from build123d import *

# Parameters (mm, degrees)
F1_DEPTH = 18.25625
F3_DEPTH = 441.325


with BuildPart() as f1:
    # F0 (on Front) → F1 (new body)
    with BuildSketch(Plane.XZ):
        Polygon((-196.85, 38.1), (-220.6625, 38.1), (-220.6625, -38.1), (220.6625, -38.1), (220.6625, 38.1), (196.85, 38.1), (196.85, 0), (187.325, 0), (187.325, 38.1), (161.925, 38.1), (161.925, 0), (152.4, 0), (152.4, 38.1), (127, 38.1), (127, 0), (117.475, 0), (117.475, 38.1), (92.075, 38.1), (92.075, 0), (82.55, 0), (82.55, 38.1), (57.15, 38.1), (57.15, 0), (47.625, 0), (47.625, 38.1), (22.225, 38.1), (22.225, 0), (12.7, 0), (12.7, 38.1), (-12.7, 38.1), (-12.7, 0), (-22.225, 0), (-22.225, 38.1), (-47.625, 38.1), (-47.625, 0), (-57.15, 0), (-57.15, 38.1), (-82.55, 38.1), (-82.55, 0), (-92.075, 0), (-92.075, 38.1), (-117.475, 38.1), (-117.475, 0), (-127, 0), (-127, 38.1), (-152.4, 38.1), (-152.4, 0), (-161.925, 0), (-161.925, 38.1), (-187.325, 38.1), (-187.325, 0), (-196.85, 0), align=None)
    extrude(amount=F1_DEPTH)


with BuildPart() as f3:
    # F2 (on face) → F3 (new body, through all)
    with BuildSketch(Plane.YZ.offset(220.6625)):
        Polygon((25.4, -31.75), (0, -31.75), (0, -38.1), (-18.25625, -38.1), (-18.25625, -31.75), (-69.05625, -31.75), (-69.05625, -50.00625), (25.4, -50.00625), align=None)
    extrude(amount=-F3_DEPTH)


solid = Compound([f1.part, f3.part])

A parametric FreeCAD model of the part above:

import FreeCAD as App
import Part
import Sketcher
Q = App.Units.Quantity

doc = App.newDocument("Part")
body = doc.addObject("PartDesign::Body", "Body")

# Sketch on XZ plane
sketch1 = body.newObject("Sketcher::SketchObject", "Sketch")
sketch1.AttachmentSupport = (doc.getObject("XZ_Plane"), [""])
sketch1.MapMode = "FlatFace"
sketch1.addGeometry(Part.LineSegment(App.Vector(-197, 38, 0), App.Vector(-221, 38, 0)), False)
sketch1.addGeometry(Part.LineSegment(App.Vector(-221, 38, 0), App.Vector(-221, -38, 0)), False)
sketch1.addGeometry(Part.LineSegment(App.Vector(-221, -38, 0), App.Vector(221, -38, 0)), False)
sketch1.addGeometry(Part.LineSegment(App.Vector(221, -38, 0), App.Vector(221, 38, 0)), False)
sketch1.addGeometry(Part.LineSegment(App.Vector(221, 38, 0), App.Vector(197, 38, 0)), False)
sketch1.addGeometry(Part.LineSegment(App.Vector(197, 38, 0), App.Vector(197, 0, 0)), False)
sketch1.addGeometry(Part.LineSegment(App.Vector(197, 0, 0), App.Vector(187, 0, 0)), False)
sketch1.addGeometry(Part.LineSegment(App.Vector(187, 0, 0), App.Vector(187, 38, 0)), False)
sketch1.addGeometry(Part.LineSegment(App.Vector(187, 38, 0), App.Vector(162, 38, 0)), False)
sketch1.addGeometry(Part.LineSegment(App.Vector(162, 38, 0), App.Vector(162, 0, 0)), False)
sketch1.addGeometry(Part.LineSegment(App.Vector(162, 0, 0), App.Vector(152, 0, 0)), False)
sketch1.addGeometry(Part.LineSegment(App.Vector(152, 0, 0), App.Vector(152, 38, 0)), False)
sketch1.addGeometry(Part.LineSegment(App.Vector(152, 38, 0), App.Vector(127, 38, 0)), False)
sketch1.addGeometry(Part.LineSegment(App.Vector(127, 38, 0), App.Vector(127, 0, 0)), False)
sketch1.addGeometry(Part.LineSegment(App.Vector(127, 0, 0), App.Vector(117, 0, 0)), False)
sketch1.addGeometry(Part.LineSegment(App.Vector(117, 0, 0), App.Vector(117, 38, 0)), False)
sketch1.addGeometry(Part.LineSegment(App.Vector(117, 38, 0), App.Vector(92, 38, 0)), False)
sketch1.addGeometry(Part.LineSegment(App.Vector(92, 38, 0), App.Vector(92, 0, 0)), False)
sketch1.addGeometry(Part.LineSegment(App.Vector(92, 0, 0), App.Vector(83, 0, 0)), False)
sketch1.addGeometry(Part.LineSegment(App.Vector(83, 0, 0), App.Vector(83, 38, 0)), False)
sketch1.addGeometry(Part.LineSegment(App.Vector(83, 38, 0), App.Vector(57, 38, 0)), False)
sketch1.addGeometry(Part.LineSegment(App.Vector(57, 38, 0), App.Vector(57, 0, 0)), False)
sketch1.addGeometry(Part.LineSegment(App.Vector(57, 0, 0), App.Vector(48, 0, 0)), False)
sketch1.addGeometry(Part.LineSegment(App.Vector(48, 0, 0), App.Vector(48, 38, 0)), False)
sketch1.addGeometry(Part.LineSegment(App.Vector(48, 38, 0), App.Vector(22, 38, 0)), False)
sketch1.addGeometry(Part.LineSegment(App.Vector(22, 38, 0), App.Vector(22, 0, 0)), False)
sketch1.addGeometry(Part.LineSegment(App.Vector(22, 0, 0), App.Vector(13, 0, 0)), False)
sketch1.addGeometry(Part.LineSegment(App.Vector(13, 0, 0), App.Vector(13, 38, 0)), False)
sketch1.addGeometry(Part.LineSegment(App.Vector(13, 38, 0), App.Vector(-13, 38, 0)), False)
sketch1.addGeometry(Part.LineSegment(App.Vector(-13, 38, 0), App.Vector(-13, 0, 0)), False)
sketch1.addGeometry(Part.LineSegment(App.Vector(-13, 0, 0), App.Vector(-22, 0, 0)), False)
sketch1.addGeometry(Part.LineSegment(App.Vector(-22, 0, 0), App.Vector(-22, 38, 0)), False)
sketch1.addGeometry(Part.LineSegment(App.Vector(-22, 38, 0), App.Vector(-48, 38, 0)), False)
sketch1.addGeometry(Part.LineSegment(App.Vector(-48, 38, 0), App.Vector(-48, 0, 0)), False)
sketch1.addGeometry(Part.LineSegment(App.Vector(-48, 0, 0), App.Vector(-57, 0, 0)), False)
sketch1.addGeometry(Part.LineSegment(App.Vector(-57, 0, 0), App.Vector(-57, 38, 0)), False)
sketch1.addGeometry(Part.LineSegment(App.Vector(-57, 38, 0), App.Vector(-83, 38, 0)), False)
sketch1.addGeometry(Part.LineSegment(App.Vector(-83, 38, 0), App.Vector(-83, 0, 0)), False)
sketch1.addGeometry(Part.LineSegment(App.Vector(-83, 0, 0), App.Vector(-92, 0, 0)), False)
sketch1.addGeometry(Part.LineSegment(App.Vector(-92, 0, 0), App.Vector(-92, 38, 0)), False)
sketch1.addGeometry(Part.LineSegment(App.Vector(-92, 38, 0), App.Vector(-117, 38, 0)), False)
sketch1.addGeometry(Part.LineSegment(App.Vector(-117, 38, 0), App.Vector(-117, 0, 0)), False)
sketch1.addGeometry(Part.LineSegment(App.Vector(-117, 0, 0), App.Vector(-127, 0, 0)), False)
sketch1.addGeometry(Part.LineSegment(App.Vector(-127, 0, 0), App.Vector(-127, 38, 0)), False)
sketch1.addGeometry(Part.LineSegment(App.Vector(-127, 38, 0), App.Vector(-152, 38, 0)), False)
sketch1.addGeometry(Part.LineSegment(App.Vector(-152, 38, 0), App.Vector(-152, 0, 0)), False)
sketch1.addGeometry(Part.LineSegment(App.Vector(-152, 0, 0), App.Vector(-162, 0, 0)), False)
sketch1.addGeometry(Part.LineSegment(App.Vector(-162, 0, 0), App.Vector(-162, 38, 0)), False)
sketch1.addGeometry(Part.LineSegment(App.Vector(-162, 38, 0), App.Vector(-187, 38, 0)), False)
sketch1.addGeometry(Part.LineSegment(App.Vector(-187, 38, 0), App.Vector(-187, 0, 0)), False)
sketch1.addGeometry(Part.LineSegment(App.Vector(-187, 0, 0), App.Vector(-197, 0, 0)), False)
sketch1.addGeometry(Part.LineSegment(App.Vector(-197, 0, 0), App.Vector(-197, 38, 0)), False)
sketch1.addConstraint(Sketcher.Constraint("Coincident", 0, 2, 1, 1))
sketch1.addConstraint(Sketcher.Constraint("Coincident", 1, 2, 2, 1))
sketch1.addConstraint(Sketcher.Constraint("Coincident", 2, 2, 3, 1))
sketch1.addConstraint(Sketcher.Constraint("Coincident", 3, 2, 4, 1))
sketch1.addConstraint(Sketcher.Constraint("Coincident", 4, 2, 5, 1))
sketch1.addConstraint(Sketcher.Constraint("Coincident", 5, 2, 6, 1))
sketch1.addConstraint(Sketcher.Constraint("Coincident", 6, 2, 7, 1))
sketch1.addConstraint(Sketcher.Constraint("Coincident", 7, 2, 8, 1))
sketch1.addConstraint(Sketcher.Constraint("Coincident", 8, 2, 9, 1))
sketch1.addConstraint(Sketcher.Constraint("Coincident", 9, 2, 10, 1))
sketch1.addConstraint(Sketcher.Constraint("Coincident", 10, 2, 11, 1))
sketch1.addConstraint(Sketcher.Constraint("Coincident", 11, 2, 12, 1))
sketch1.addConstraint(Sketcher.Constraint("Coincident", 12, 2, 13, 1))
sketch1.addConstraint(Sketcher.Constraint("Coincident", 13, 2, 14, 1))
sketch1.addConstraint(Sketcher.Constraint("Coincident", 14, 2, 15, 1))
sketch1.addConstraint(Sketcher.Constraint("Coincident", 15, 2, 16, 1))
sketch1.addConstraint(Sketcher.Constraint("Coincident", 16, 2, 17, 1))
sketch1.addConstraint(Sketcher.Constraint("Coincident", 17, 2, 18, 1))
sketch1.addConstraint(Sketcher.Constraint("Coincident", 18, 2, 19, 1))
sketch1.addConstraint(Sketcher.Constraint("Coincident", 19, 2, 20, 1))
sketch1.addConstraint(Sketcher.Constraint("Coincident", 20, 2, 21, 1))
sketch1.addConstraint(Sketcher.Constraint("Coincident", 21, 2, 22, 1))
sketch1.addConstraint(Sketcher.Constraint("Coincident", 22, 2, 23, 1))
sketch1.addConstraint(Sketcher.Constraint("Coincident", 23, 2, 24, 1))
sketch1.addConstraint(Sketcher.Constraint("Coincident", 24, 2, 25, 1))
sketch1.addConstraint(Sketcher.Constraint("Coincident", 25, 2, 26, 1))
sketch1.addConstraint(Sketcher.Constraint("Coincident", 26, 2, 27, 1))
sketch1.addConstraint(Sketcher.Constraint("Coincident", 27, 2, 28, 1))
sketch1.addConstraint(Sketcher.Constraint("Coincident", 28, 2, 29, 1))
sketch1.addConstraint(Sketcher.Constraint("Coincident", 29, 2, 30, 1))
sketch1.addConstraint(Sketcher.Constraint("Coincident", 30, 2, 31, 1))
sketch1.addConstraint(Sketcher.Constraint("Coincident", 31, 2, 32, 1))
sketch1.addConstraint(Sketcher.Constraint("Coincident", 32, 2, 33, 1))
sketch1.addConstraint(Sketcher.Constraint("Coincident", 33, 2, 34, 1))
sketch1.addConstraint(Sketcher.Constraint("Coincident", 34, 2, 35, 1))
sketch1.addConstraint(Sketcher.Constraint("Coincident", 35, 2, 36, 1))
sketch1.addConstraint(Sketcher.Constraint("Coincident", 36, 2, 37, 1))
sketch1.addConstraint(Sketcher.Constraint("Coincident", 37, 2, 38, 1))
sketch1.addConstraint(Sketcher.Constraint("Coincident", 38, 2, 39, 1))
sketch1.addConstraint(Sketcher.Constraint("Coincident", 39, 2, 40, 1))
sketch1.addConstraint(Sketcher.Constraint("Coincident", 40, 2, 41, 1))
sketch1.addConstraint(Sketcher.Constraint("Coincident", 41, 2, 42, 1))
sketch1.addConstraint(Sketcher.Constraint("Coincident", 42, 2, 43, 1))
sketch1.addConstraint(Sketcher.Constraint("Coincident", 43, 2, 44, 1))
sketch1.addConstraint(Sketcher.Constraint("Coincident", 44, 2, 45, 1))
sketch1.addConstraint(Sketcher.Constraint("Coincident", 45, 2, 46, 1))
sketch1.addConstraint(Sketcher.Constraint("Coincident", 46, 2, 47, 1))
sketch1.addConstraint(Sketcher.Constraint("Coincident", 47, 2, 48, 1))
sketch1.addConstraint(Sketcher.Constraint("Coincident", 48, 2, 49, 1))
sketch1.addConstraint(Sketcher.Constraint("Coincident", 49, 2, 50, 1))
sketch1.addConstraint(Sketcher.Constraint("Coincident", 50, 2, 51, 1))
sketch1.addConstraint(Sketcher.Constraint("Coincident", 51, 2, 0, 1))
sketch1.addConstraint(Sketcher.Constraint("Horizontal", 0))
sketch1.addConstraint(Sketcher.Constraint("Vertical", 1))
sketch1.addConstraint(Sketcher.Constraint("Horizontal", 2))
sketch1.addConstraint(Sketcher.Constraint("Vertical", 3))
sketch1.addConstraint(Sketcher.Constraint("Horizontal", 4))
sketch1.addConstraint(Sketcher.Constraint("Vertical", 5))
sketch1.addConstraint(Sketcher.Constraint("Horizontal", 6))
sketch1.addConstraint(Sketcher.Constraint("Vertical", 7))
sketch1.addConstraint(Sketcher.Constraint("Horizontal", 8))
sketch1.addConstraint(Sketcher.Constraint("Vertical", 9))
sketch1.addConstraint(Sketcher.Constraint("Horizontal", 10))
sketch1.addConstraint(Sketcher.Constraint("Vertical", 11))
sketch1.addConstraint(Sketcher.Constraint("Horizontal", 12))
sketch1.addConstraint(Sketcher.Constraint("Vertical", 13))
sketch1.addConstraint(Sketcher.Constraint("Horizontal", 14))
sketch1.addConstraint(Sketcher.Constraint("Vertical", 15))
sketch1.addConstraint(Sketcher.Constraint("Horizontal", 16))
sketch1.addConstraint(Sketcher.Constraint("Vertical", 17))
sketch1.addConstraint(Sketcher.Constraint("Horizontal", 18))
sketch1.addConstraint(Sketcher.Constraint("Vertical", 19))
sketch1.addConstraint(Sketcher.Constraint("Horizontal", 20))
sketch1.addConstraint(Sketcher.Constraint("Vertical", 21))
sketch1.addConstraint(Sketcher.Constraint("Horizontal", 22))
sketch1.addConstraint(Sketcher.Constraint("Vertical", 23))
sketch1.addConstraint(Sketcher.Constraint("Horizontal", 24))
sketch1.addConstraint(Sketcher.Constraint("Vertical", 25))
sketch1.addConstraint(Sketcher.Constraint("Horizontal", 26))
sketch1.addConstraint(Sketcher.Constraint("Vertical", 27))
sketch1.addConstraint(Sketcher.Constraint("Horizontal", 28))
sketch1.addConstraint(Sketcher.Constraint("Vertical", 29))
sketch1.addConstraint(Sketcher.Constraint("Horizontal", 30))
sketch1.addConstraint(Sketcher.Constraint("Vertical", 31))
sketch1.addConstraint(Sketcher.Constraint("Horizontal", 32))
sketch1.addConstraint(Sketcher.Constraint("Vertical", 33))
sketch1.addConstraint(Sketcher.Constraint("Horizontal", 34))
sketch1.addConstraint(Sketcher.Constraint("Vertical", 35))
sketch1.addConstraint(Sketcher.Constraint("Horizontal", 36))
sketch1.addConstraint(Sketcher.Constraint("Vertical", 37))
sketch1.addConstraint(Sketcher.Constraint("Horizontal", 38))
sketch1.addConstraint(Sketcher.Constraint("Vertical", 39))
sketch1.addConstraint(Sketcher.Constraint("Horizontal", 40))
sketch1.addConstraint(Sketcher.Constraint("Vertical", 41))
sketch1.addConstraint(Sketcher.Constraint("Horizontal", 42))
sketch1.addConstraint(Sketcher.Constraint("Vertical", 43))
sketch1.addConstraint(Sketcher.Constraint("Horizontal", 44))
sketch1.addConstraint(Sketcher.Constraint("Vertical", 45))
sketch1.addConstraint(Sketcher.Constraint("Horizontal", 46))
sketch1.addConstraint(Sketcher.Constraint("Vertical", 47))
sketch1.addConstraint(Sketcher.Constraint("Horizontal", 48))
sketch1.addConstraint(Sketcher.Constraint("Vertical", 49))
sketch1.addConstraint(Sketcher.Constraint("Horizontal", 50))
sketch1.addConstraint(Sketcher.Constraint("Vertical", 51))
sketch1.addConstraint(Sketcher.Constraint("Symmetric", 0, 2, 2, 2, -1, 1))
sketch1.addConstraint(Sketcher.Constraint("Symmetric", 26, 2, 29, 2, -1, 1))
sketch1.addConstraint(Sketcher.Constraint("Symmetric", 22, 2, 33, 2, -1, 1))
sketch1.addConstraint(Sketcher.Constraint("Symmetric", 18, 2, 37, 2, -1, 1))
sketch1.addConstraint(Sketcher.Constraint("Symmetric", 14, 2, 41, 2, -1, 1))
sketch1.addConstraint(Sketcher.Constraint("Symmetric", 10, 2, 45, 2, -1, 1))
sketch1.addConstraint(Sketcher.Constraint("Symmetric", 6, 2, 49, 2, -1, 1))
sketch1.addConstraint(Sketcher.Constraint("Symmetric", 25, 2, 30, 2, -2))
sketch1.addConstraint(Sketcher.Constraint("Symmetric", 21, 2, 34, 2, -2))
sketch1.addConstraint(Sketcher.Constraint("Symmetric", 17, 2, 38, 2, -2))
sketch1.addConstraint(Sketcher.Constraint("Symmetric", 13, 2, 42, 2, -2))
sketch1.addConstraint(Sketcher.Constraint("Symmetric", 9, 2, 46, 2, -2))
sketch1.addConstraint(Sketcher.Constraint("Symmetric", 5, 2, 50, 2, -2))
sketch1.addConstraint(Sketcher.Constraint("Horizontal", 0, 2, 3, 2))
sketch1.addConstraint(Sketcher.Constraint("Horizontal", 4, 2, 7, 2))
sketch1.addConstraint(Sketcher.Constraint("Horizontal", 8, 2, 11, 2))
sketch1.addConstraint(Sketcher.Constraint("Horizontal", 12, 2, 15, 2))
sketch1.addConstraint(Sketcher.Constraint("Horizontal", 16, 2, 19, 2))
sketch1.addConstraint(Sketcher.Constraint("Horizontal", 20, 2, 23, 2))
sketch1.addConstraint(Sketcher.Constraint("Horizontal", 24, 2, 27, 2))
sketch1.addConstraint(Sketcher.Constraint("Horizontal", 28, 2, 31, 2))
sketch1.addConstraint(Sketcher.Constraint("Horizontal", 32, 2, 35, 2))
sketch1.addConstraint(Sketcher.Constraint("Horizontal", 36, 2, 39, 2))
sketch1.addConstraint(Sketcher.Constraint("Horizontal", 40, 2, 43, 2))
sketch1.addConstraint(Sketcher.Constraint("Horizontal", 44, 2, 47, 2))
sketch1.addConstraint(Sketcher.Constraint("Equal", 6, 10))
sketch1.addConstraint(Sketcher.Constraint("Equal", 8, 12))
sketch1.addConstraint(Sketcher.Constraint("Equal", 10, 14))
sketch1.addConstraint(Sketcher.Constraint("Equal", 12, 16))
sketch1.addConstraint(Sketcher.Constraint("Equal", 14, 18))
sketch1.addConstraint(Sketcher.Constraint("Equal", 16, 20))
sketch1.addConstraint(Sketcher.Constraint("Equal", 18, 22))
sketch1.addConstraint(Sketcher.Constraint("Equal", 20, 24))
sketch1.addConstraint(Sketcher.Constraint("Equal", 22, 26))
sketch1.addConstraint(Sketcher.Constraint("Equal", 24, 28))
sketch1.addConstraint(Sketcher.Constraint("DistanceX", 8, 2, 8, 1, Q("1 in")))
sketch1.addConstraint(Sketcher.Constraint("DistanceY", 1, 2, 1, 1, Q("3 in")))
sketch1.addConstraint(Sketcher.Constraint("DistanceX", -1, 1, 10, 2, Q("6 in")))
sketch1.addConstraint(Sketcher.Constraint("DistanceX", 0, 2, 0, 1, Q("0.9375 in")))
pad1 = body.newObject("PartDesign::Pad", "Pad")
pad1.Profile = sketch1
pad1.Length = Q("0.71875 in")
body2 = doc.addObject("PartDesign::Body", "Body001")

# Sketch on YZ plane
sketch2 = body2.newObject("Sketcher::SketchObject", "Sketch001")
sketch2.AttachmentSupport = (doc.getObject("YZ_Plane001"), [""])
sketch2.MapMode = "FlatFace"
sketch2.AttachmentOffset = App.Placement(App.Vector(0, 0, 8.6875 * 25.4), App.Rotation())
sketch2.addGeometry(Part.LineSegment(App.Vector(25, -32, 0), App.Vector(0, -32, 0)), False)
sketch2.addGeometry(Part.LineSegment(App.Vector(0, -32, 0), App.Vector(0, -38, 0)), False)
sketch2.addGeometry(Part.LineSegment(App.Vector(0, -38, 0), App.Vector(-18, -38, 0)), False)
sketch2.addGeometry(Part.LineSegment(App.Vector(-18, -38, 0), App.Vector(-18, -32, 0)), False)
sketch2.addGeometry(Part.LineSegment(App.Vector(-18, -32, 0), App.Vector(-69, -32, 0)), False)
sketch2.addGeometry(Part.LineSegment(App.Vector(-69, -32, 0), App.Vector(-69, -50, 0)), False)
sketch2.addGeometry(Part.LineSegment(App.Vector(-69, -50, 0), App.Vector(25, -50, 0)), False)
sketch2.addGeometry(Part.LineSegment(App.Vector(25, -50, 0), App.Vector(25, -32, 0)), False)
sketch2.addConstraint(Sketcher.Constraint("Coincident", 0, 2, 1, 1))
sketch2.addConstraint(Sketcher.Constraint("Coincident", 1, 2, 2, 1))
sketch2.addConstraint(Sketcher.Constraint("Coincident", 2, 2, 3, 1))
sketch2.addConstraint(Sketcher.Constraint("Coincident", 3, 2, 4, 1))
sketch2.addConstraint(Sketcher.Constraint("Coincident", 4, 2, 5, 1))
sketch2.addConstraint(Sketcher.Constraint("Coincident", 5, 2, 6, 1))
sketch2.addConstraint(Sketcher.Constraint("Coincident", 6, 2, 7, 1))
sketch2.addConstraint(Sketcher.Constraint("Coincident", 7, 2, 0, 1))
sketch2.addConstraint(Sketcher.Constraint("Horizontal", 0))
sketch2.addConstraint(Sketcher.Constraint("Vertical", 1))
sketch2.addConstraint(Sketcher.Constraint("Horizontal", 2))
sketch2.addConstraint(Sketcher.Constraint("Vertical", 3))
sketch2.addConstraint(Sketcher.Constraint("Horizontal", 4))
sketch2.addConstraint(Sketcher.Constraint("Vertical", 5))
sketch2.addConstraint(Sketcher.Constraint("Horizontal", 6))
sketch2.addConstraint(Sketcher.Constraint("Vertical", 7))
sketch2.addConstraint(Sketcher.Constraint("PointOnObject", 0, 2, -2))
sketch2.addConstraint(Sketcher.Constraint("Horizontal", 0, 2, 3, 2))
sketch2.addConstraint(Sketcher.Constraint("Equal", 2, 5))
sketch2.addConstraint(Sketcher.Constraint("DistanceX", 0, 2, 0, 1, Q("1 in")))
sketch2.addConstraint(Sketcher.Constraint("DistanceX", 4, 2, 4, 1, Q("2 in")))
sketch2.addConstraint(Sketcher.Constraint("DistanceY", 1, 2, 1, 1, Q("0.25 in")))
sketch2.addConstraint(Sketcher.Constraint("DistanceY", 1, 2, -1, 1, Q("1.5 in")))
sketch2.addConstraint(Sketcher.Constraint("DistanceX", 2, 2, 2, 1, Q("0.71875 in")))
pad2 = body2.newObject("PartDesign::Pad", "Pad001")
pad2.Profile = sketch2
pad2.Length = Q("17.375 in")
pad2.Reversed = True

doc.recompute()
